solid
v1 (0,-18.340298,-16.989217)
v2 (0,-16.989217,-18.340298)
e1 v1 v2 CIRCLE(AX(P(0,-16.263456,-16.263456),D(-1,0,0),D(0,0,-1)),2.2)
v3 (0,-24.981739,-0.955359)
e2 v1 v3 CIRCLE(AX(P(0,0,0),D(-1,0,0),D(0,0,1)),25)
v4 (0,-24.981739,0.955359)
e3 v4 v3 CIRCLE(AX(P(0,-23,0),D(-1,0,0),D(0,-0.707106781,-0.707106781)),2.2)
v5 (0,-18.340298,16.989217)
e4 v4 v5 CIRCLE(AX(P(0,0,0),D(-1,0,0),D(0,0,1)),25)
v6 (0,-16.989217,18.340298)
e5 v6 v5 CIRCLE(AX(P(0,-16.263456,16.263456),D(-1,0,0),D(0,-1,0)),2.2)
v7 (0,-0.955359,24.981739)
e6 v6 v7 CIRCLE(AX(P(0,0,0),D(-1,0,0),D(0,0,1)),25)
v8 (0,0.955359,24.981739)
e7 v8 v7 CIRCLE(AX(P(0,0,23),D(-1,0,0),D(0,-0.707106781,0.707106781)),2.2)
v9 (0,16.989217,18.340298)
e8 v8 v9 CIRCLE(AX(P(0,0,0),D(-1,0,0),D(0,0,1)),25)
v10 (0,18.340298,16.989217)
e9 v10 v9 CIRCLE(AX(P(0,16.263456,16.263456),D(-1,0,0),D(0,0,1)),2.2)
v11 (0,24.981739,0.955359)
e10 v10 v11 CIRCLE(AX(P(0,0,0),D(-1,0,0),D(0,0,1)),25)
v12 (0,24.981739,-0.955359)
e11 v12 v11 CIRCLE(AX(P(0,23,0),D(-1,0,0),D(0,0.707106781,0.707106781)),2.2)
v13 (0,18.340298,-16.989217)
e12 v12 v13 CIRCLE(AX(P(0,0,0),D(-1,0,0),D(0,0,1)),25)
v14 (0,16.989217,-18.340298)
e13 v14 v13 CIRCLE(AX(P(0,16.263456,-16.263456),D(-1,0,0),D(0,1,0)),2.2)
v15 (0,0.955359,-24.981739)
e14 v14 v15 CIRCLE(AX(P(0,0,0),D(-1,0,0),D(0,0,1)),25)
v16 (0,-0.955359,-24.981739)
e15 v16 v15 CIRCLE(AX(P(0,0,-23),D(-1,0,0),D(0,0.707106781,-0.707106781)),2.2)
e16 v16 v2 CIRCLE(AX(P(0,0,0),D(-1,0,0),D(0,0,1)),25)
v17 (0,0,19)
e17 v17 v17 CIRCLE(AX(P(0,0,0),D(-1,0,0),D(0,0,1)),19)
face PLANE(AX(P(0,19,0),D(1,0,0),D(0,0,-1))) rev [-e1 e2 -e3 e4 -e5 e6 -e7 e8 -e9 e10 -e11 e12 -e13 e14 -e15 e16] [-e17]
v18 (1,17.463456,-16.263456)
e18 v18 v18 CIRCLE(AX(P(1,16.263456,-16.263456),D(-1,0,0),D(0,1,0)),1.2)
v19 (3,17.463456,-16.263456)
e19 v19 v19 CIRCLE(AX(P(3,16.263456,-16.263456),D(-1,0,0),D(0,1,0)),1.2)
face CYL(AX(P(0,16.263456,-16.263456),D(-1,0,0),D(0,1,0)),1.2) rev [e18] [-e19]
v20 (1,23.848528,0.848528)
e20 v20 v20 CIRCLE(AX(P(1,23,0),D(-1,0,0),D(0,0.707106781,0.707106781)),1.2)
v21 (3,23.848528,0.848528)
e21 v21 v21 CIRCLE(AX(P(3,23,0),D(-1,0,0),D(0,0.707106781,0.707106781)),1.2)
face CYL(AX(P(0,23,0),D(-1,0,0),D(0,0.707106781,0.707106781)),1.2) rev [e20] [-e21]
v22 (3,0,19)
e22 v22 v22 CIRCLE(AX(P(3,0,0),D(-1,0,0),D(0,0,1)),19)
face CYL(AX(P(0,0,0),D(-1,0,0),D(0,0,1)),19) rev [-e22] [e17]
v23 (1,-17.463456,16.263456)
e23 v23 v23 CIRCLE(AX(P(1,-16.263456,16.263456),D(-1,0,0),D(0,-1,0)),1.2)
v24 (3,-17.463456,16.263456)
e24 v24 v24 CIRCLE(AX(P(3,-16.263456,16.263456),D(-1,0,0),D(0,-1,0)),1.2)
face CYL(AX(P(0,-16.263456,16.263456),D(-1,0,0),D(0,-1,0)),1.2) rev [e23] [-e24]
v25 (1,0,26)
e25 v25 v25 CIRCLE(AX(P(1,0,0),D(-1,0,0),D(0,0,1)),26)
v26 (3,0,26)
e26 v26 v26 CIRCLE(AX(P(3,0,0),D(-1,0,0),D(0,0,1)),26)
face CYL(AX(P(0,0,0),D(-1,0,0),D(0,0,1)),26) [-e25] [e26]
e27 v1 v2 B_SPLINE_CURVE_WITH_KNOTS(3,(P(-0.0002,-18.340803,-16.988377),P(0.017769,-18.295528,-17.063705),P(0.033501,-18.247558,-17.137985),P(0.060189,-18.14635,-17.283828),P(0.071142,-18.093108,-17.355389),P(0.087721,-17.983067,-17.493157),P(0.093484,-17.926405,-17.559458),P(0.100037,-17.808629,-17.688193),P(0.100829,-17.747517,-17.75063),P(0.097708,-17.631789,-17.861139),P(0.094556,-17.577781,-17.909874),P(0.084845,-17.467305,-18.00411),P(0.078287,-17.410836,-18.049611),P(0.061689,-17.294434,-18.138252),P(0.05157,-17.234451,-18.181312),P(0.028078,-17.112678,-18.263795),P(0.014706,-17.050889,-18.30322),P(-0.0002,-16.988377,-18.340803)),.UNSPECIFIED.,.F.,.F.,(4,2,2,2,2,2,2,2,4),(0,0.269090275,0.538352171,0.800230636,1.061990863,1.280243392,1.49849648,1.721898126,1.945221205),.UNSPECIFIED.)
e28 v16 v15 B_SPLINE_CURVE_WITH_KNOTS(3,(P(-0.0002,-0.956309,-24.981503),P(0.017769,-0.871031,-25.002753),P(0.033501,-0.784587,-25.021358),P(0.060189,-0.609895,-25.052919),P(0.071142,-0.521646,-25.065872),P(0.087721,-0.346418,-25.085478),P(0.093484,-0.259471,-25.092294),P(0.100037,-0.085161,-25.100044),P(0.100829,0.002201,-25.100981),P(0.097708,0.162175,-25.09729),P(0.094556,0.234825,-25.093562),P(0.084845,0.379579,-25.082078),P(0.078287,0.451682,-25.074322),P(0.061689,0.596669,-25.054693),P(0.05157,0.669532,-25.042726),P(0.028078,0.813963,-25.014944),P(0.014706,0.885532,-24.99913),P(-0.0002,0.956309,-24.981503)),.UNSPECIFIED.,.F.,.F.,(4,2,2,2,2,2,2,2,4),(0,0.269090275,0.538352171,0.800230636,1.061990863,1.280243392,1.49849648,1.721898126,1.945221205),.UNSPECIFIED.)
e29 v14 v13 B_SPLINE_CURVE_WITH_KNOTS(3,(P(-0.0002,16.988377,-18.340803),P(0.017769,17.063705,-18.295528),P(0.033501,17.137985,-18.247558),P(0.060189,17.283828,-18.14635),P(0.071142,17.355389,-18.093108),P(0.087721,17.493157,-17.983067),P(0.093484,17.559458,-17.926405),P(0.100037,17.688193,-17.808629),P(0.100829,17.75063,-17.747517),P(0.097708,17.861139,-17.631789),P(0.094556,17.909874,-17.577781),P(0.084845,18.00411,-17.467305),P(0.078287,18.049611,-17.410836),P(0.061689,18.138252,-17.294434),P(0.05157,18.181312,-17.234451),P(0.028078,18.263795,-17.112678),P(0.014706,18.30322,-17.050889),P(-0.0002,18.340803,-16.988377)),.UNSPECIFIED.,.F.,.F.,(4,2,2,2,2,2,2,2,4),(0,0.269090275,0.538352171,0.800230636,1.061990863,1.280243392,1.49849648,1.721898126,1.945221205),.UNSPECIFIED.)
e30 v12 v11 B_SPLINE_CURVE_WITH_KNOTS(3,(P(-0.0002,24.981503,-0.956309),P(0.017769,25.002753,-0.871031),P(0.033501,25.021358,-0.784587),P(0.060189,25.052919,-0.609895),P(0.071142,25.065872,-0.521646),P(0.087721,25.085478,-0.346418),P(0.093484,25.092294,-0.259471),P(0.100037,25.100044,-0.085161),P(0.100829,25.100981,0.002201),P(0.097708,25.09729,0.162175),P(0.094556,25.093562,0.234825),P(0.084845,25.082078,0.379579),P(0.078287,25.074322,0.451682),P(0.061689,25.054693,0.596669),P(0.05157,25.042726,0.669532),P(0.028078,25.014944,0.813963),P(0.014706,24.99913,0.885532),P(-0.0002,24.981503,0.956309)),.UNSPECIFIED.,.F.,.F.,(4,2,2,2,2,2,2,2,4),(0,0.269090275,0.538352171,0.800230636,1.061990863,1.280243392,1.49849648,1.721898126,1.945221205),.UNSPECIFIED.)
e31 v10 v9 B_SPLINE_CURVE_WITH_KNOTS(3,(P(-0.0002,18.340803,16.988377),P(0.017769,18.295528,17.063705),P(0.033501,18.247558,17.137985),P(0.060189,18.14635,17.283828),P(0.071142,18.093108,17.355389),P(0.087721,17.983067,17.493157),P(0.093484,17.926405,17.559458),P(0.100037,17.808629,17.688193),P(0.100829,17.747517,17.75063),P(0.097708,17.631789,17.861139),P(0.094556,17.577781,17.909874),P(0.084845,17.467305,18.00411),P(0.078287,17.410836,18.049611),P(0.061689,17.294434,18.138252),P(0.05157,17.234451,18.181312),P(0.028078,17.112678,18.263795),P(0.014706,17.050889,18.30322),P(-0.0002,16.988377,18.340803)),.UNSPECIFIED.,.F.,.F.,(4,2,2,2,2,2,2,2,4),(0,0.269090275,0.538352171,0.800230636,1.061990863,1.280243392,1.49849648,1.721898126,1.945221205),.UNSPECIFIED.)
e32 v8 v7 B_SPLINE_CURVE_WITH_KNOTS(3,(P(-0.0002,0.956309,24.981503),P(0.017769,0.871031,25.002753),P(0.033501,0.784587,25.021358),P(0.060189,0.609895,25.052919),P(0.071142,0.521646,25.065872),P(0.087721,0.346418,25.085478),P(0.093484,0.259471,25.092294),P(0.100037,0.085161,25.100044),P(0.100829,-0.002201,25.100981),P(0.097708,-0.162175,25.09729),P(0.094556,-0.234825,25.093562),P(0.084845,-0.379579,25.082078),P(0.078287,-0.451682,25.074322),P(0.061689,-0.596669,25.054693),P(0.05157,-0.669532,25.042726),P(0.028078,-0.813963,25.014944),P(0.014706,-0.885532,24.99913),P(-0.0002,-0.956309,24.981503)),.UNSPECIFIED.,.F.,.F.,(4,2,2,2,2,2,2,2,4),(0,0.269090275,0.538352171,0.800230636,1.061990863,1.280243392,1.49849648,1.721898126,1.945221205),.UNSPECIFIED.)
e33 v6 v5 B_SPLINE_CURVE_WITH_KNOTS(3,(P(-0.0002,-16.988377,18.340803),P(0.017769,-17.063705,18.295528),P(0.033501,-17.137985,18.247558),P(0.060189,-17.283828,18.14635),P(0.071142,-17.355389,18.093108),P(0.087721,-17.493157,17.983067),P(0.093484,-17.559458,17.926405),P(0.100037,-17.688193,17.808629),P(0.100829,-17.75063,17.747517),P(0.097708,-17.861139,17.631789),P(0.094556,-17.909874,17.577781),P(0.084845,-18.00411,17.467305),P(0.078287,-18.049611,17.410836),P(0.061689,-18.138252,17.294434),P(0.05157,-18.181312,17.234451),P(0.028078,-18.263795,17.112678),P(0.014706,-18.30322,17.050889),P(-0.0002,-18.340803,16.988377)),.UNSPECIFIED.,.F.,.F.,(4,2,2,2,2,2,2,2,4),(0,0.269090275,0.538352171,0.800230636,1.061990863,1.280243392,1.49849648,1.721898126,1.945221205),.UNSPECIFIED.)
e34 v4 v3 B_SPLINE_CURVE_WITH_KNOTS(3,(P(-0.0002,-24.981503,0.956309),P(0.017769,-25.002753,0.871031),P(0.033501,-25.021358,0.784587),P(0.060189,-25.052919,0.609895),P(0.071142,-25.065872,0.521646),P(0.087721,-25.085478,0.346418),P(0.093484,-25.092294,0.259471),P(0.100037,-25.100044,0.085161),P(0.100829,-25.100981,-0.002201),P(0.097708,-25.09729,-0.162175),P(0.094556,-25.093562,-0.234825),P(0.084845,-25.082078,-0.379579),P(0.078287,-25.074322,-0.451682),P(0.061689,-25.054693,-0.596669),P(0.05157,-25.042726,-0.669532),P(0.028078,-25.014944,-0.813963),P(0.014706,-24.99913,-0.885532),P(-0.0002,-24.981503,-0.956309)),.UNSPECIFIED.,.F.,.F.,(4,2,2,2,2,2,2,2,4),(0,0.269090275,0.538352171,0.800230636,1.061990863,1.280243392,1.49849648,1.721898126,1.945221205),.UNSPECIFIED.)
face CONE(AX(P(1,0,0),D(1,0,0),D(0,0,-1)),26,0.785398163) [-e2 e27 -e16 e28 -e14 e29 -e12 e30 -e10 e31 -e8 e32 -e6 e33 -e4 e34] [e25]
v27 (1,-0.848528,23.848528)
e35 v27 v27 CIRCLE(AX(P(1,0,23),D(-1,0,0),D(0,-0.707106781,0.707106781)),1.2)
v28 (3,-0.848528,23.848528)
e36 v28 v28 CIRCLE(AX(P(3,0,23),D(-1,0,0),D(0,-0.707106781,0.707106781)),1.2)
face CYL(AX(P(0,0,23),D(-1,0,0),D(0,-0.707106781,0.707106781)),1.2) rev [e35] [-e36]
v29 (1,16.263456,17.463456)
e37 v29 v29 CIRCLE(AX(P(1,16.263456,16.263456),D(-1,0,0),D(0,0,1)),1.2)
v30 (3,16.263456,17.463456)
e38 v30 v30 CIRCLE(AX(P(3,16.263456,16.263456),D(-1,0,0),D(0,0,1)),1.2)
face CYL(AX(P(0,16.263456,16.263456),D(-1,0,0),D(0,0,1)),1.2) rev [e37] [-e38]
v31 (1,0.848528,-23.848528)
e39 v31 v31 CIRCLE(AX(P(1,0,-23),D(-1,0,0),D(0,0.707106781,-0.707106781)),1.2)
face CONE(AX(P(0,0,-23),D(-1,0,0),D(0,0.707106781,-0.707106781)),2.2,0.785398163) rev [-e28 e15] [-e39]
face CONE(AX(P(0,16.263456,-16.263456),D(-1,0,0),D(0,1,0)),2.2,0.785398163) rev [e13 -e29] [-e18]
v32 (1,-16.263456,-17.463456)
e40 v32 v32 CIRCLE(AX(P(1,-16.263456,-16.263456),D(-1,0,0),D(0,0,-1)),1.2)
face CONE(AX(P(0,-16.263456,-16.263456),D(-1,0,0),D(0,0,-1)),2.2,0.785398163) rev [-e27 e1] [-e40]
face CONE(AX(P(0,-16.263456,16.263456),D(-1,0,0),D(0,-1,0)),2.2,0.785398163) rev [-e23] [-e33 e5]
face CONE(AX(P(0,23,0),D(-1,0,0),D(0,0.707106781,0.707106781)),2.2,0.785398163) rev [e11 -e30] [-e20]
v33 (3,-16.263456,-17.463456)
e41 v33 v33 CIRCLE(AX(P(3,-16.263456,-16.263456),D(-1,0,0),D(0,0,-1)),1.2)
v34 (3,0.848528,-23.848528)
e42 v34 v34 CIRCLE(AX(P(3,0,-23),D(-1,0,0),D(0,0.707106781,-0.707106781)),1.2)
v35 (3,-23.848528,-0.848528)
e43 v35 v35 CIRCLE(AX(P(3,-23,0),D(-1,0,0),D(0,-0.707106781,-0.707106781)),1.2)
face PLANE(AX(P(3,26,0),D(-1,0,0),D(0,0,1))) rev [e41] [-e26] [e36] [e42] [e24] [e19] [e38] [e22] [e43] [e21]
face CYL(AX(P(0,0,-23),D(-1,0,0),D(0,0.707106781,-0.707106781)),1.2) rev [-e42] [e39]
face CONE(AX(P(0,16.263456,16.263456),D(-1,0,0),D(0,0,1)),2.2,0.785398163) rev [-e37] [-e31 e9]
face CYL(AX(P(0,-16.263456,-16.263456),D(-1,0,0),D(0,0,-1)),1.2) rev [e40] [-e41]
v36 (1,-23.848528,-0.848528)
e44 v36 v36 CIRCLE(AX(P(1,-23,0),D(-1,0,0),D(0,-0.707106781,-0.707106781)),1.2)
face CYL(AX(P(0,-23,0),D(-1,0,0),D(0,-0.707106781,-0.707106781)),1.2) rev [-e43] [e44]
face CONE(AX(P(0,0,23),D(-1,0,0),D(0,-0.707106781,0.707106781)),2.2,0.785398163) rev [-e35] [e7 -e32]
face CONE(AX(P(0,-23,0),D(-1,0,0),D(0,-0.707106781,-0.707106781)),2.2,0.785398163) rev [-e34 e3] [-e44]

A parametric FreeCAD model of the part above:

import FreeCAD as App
import Part
import Sketcher
Q = App.Units.Quantity

doc = App.newDocument("Part")
body = doc.addObject("PartDesign::Body", "Body")

# Sketch on XY plane
sketch1 = doc.addObject("Sketcher::SketchObject", "Sketch")
body.addObject(sketch1)
sketch1.AttachmentSupport = (doc.XY_Plane, [""])
sketch1.MapMode = "FlatFace"
sketch1.addGeometry(Part.LineSegment(App.Vector(0, 25, 0), App.Vector(0, 19, 0)), False)
sketch1.addGeometry(Part.LineSegment(App.Vector(0, 19, 0), App.Vector(3, 19, 0)), False)
sketch1.addGeometry(Part.LineSegment(App.Vector(3, 19, 0), App.Vector(3, 26, 0)), False)
sketch1.addGeometry(Part.LineSegment(App.Vector(3, 26, 0), App.Vector(1, 26, 0)), False)
sketch1.addGeometry(Part.LineSegment(App.Vector(1, 26, 0), App.Vector(0, 25, 0)), False)
sketch1.addConstraint(Sketcher.Constraint("Coincident", 0, 2, 1, 1))
sketch1.addConstraint(Sketcher.Constraint("Coincident", 1, 2, 2, 1))
sketch1.addConstraint(Sketcher.Constraint("Coincident", 2, 2, 3, 1))
sketch1.addConstraint(Sketcher.Constraint("Coincident", 3, 2, 4, 1))
sketch1.addConstraint(Sketcher.Constraint("Coincident", 4, 2, 0, 1))
sketch1.addConstraint(Sketcher.Constraint("Vertical", 0))
sketch1.addConstraint(Sketcher.Constraint("Horizontal", 1))
sketch1.addConstraint(Sketcher.Constraint("Vertical", 2))
sketch1.addConstraint(Sketcher.Constraint("Horizontal", 3))
sketch1.addConstraint(Sketcher.Constraint("PointOnObject", 0, 2, -2))
sketch1.addConstraint(Sketcher.Constraint("DistanceX", 1, 1, 1, 2, Q("3 mm")))
sketch1.addConstraint(Sketcher.Constraint("DistanceX", 3, 2, 3, 1, Q("2 mm")))
sketch1.addConstraint(Sketcher.Constraint("DistanceY", 0, 2, 0, 1, Q("6 mm")))
sketch1.addConstraint(Sketcher.Constraint("DistanceY", 2, 1, 2, 2, Q("7 mm")))
sketch1.addConstraint(Sketcher.Constraint("DistanceY", -1, 1, 0, 2, Q("19 mm")))
revolution = doc.addObject("PartDesign::Revolution", "Revolution")
body.addObject(revolution)
revolution.Profile = sketch1
revolution.ReferenceAxis = (sketch1, ["H_Axis"])
revolution.Angle = 360

# Sketch on YZ plane
sketch2 = doc.addObject("Sketcher::SketchObject", "Sketch001")
body.addObject(sketch2)
sketch2.AttachmentSupport = (doc.YZ_Plane, [""])
sketch2.MapMode = "FlatFace"
sketch2.addGeometry(Part.Circle(App.Vector(16.263456, 16.263456, 0), App.Vector(0, 0, 1), 1.2), False)
sketch2.addConstraint(Sketcher.Constraint("Diameter", 0, Q("2.4 mm")))
sketch2.addConstraint(Sketcher.Constraint("DistanceX", -1, 1, 0, 3, Q("16.263456 mm")))
sketch2.addConstraint(Sketcher.Constraint("DistanceY", -1, 1, 0, 3, Q("16.263456 mm")))
doc.recompute()
hole = doc.addObject("PartDesign::Hole", "Hole")
body.addObject(hole)
hole.Profile = sketch2
hole.ThreadType = "None"
hole.Diameter = 2.4
hole.DepthType = "ThroughAll"
hole.HoleCutType = "Countersink"
hole.HoleCutDiameter = 4.4
hole.HoleCutCountersinkAngle = 90
hole.Reversed = True
doc.recompute()

polarpattern = doc.addObject("PartDesign::PolarPattern", "PolarPattern")
body.addObject(polarpattern)
polarpattern.Originals = [hole]
polarpattern.Axis = (doc.X_Axis, [""])
polarpattern.Angle = 360
polarpattern.Occurrences = 8
body.Tip = polarpattern

doc.recompute()
